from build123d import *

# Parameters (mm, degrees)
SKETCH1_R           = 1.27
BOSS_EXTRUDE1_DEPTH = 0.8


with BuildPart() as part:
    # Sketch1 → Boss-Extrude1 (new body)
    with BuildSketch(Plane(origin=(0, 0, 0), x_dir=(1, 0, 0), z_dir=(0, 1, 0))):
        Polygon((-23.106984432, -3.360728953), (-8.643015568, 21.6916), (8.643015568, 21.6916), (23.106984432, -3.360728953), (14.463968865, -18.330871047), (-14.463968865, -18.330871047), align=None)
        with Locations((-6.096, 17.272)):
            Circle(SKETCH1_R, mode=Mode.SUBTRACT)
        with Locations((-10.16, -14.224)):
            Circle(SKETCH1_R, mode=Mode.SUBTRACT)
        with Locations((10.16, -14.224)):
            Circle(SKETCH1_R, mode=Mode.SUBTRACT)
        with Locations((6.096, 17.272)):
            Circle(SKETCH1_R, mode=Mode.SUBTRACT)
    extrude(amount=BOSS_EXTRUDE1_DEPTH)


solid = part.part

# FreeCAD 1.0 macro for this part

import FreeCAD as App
import Part
import Sketcher
from FreeCAD import Vector
Q = App.Units.Quantity

doc = App.newDocument("Part")
body = doc.addObject("PartDesign::Body", "Body")

sketch1 = body.newObject("Sketcher::SketchObject", "Sketch")
sketch1.AttachmentSupport = (doc.getObject("XZ_Plane"), [""])
sketch1.MapMode = "FlatFace"
sketch1.addGeometry(Part.LineSegment(Vector(-8.6, -21.7, 0), Vector(-23.1, 3.4, 0)), False)
sketch1.addGeometry(Part.LineSegment(Vector(-23.1, 3.4, 0), Vector(-14.5, 18.3, 0)), False)
sketch1.addGeometry(Part.LineSegment(Vector(-14.5, 18.3, 0), Vector(14.5, 18.3, 0)), False)
sketch1.addGeometry(Part.LineSegment(Vector(14.5, 18.3, 0), Vector(23.1, 3.4, 0)), False)
sketch1.addGeometry(Part.LineSegment(Vector(23.1, 3.4, 0), Vector(8.6, -21.7, 0)), False)
sketch1.addGeometry(Part.LineSegment(Vector(8.6, -21.7, 0), Vector(-8.6, -21.7, 0)), False)
sketch1.addGeometry(Part.Circle(Vector(10.2, 14.2, 0), Vector(0, 0, 1), 1.3), False)
sketch1.addGeometry(Part.Circle(Vector(-10.2, 14.2, 0), Vector(0, 0, 1), 1.3), False)
sketch1.addGeometry(Part.Circle(Vector(6.1, -17.3, 0), Vector(0, 0, 1), 1.3), False)
sketch1.addGeometry(Part.Circle(Vector(-6.1, -17.3, 0), Vector(0, 0, 1), 1.3), False)
sketch1.addConstraint(Sketcher.Constraint("Coincident", 0, 2, 1, 1))
sketch1.addConstraint(Sketcher.Constraint("Coincident", 1, 2, 2, 1))
sketch1.addConstraint(Sketcher.Constraint("Coincident", 2, 2, 3, 1))
sketch1.addConstraint(Sketcher.Constraint("Coincident", 3, 2, 4, 1))
sketch1.addConstraint(Sketcher.Constraint("Coincident", 4, 2, 5, 1))
sketch1.addConstraint(Sketcher.Constraint("Coincident", 5, 2, 0, 1))
sketch1.addConstraint(Sketcher.Constraint("Horizontal", 2))
sketch1.addConstraint(Sketcher.Constraint("Horizontal", 5))
sketch1.addConstraint(Sketcher.Constraint("Equal", 6, 7))
sketch1.addConstraint(Sketcher.Constraint("Equal", 7, 8))
sketch1.addConstraint(Sketcher.Constraint("Equal", 8, 9))
sketch1.addConstraint(Sketcher.Constraint("Symmetric", 6, 3, 7, 3, -2))
sketch1.addConstraint(Sketcher.Constraint("Symmetric", 8, 3, 9, 3, -2))
sketch1.addConstraint(Sketcher.Constraint("Symmetric", 0, 2, 3, 2, -2))
sketch1.addConstraint(Sketcher.Constraint("Parallel", 0, 3))
sketch1.addConstraint(Sketcher.Constraint("Parallel", 1, 4))
sketch1.addConstraint(Sketcher.Constraint("Equal", 1, 3))
sketch1.addConstraint(Sketcher.Constraint("Diameter", 6, Q("2.54 mm")))
sketch1.addConstraint(Sketcher.Constraint("Angle", 0, Q("120 deg")))
sketch1.addConstraint(Sketcher.Constraint("DistanceX", -1, 1, 6, 3, Q("10.16 mm")))
sketch1.addConstraint(Sketcher.Constraint("DistanceX", 0, 2, 4, 2, Q("31.75 mm")))
sketch1.addConstraint(Sketcher.Constraint("DistanceY", -1, 1, 6, 3, Q("14.224 mm")))
sketch1.addConstraint(Sketcher.Constraint("DistanceX", -1, 1, 8, 3, Q("6.096 mm")))
sketch1.addConstraint(Sketcher.Constraint("DistanceY", 8, 3, -1, 1, Q("17.272 mm")))
sketch1.addConstraint(Sketcher.Constraint("DistanceX", 5, 2, 5, 1, Q("17.286031 mm")))
sketch1.addConstraint(Sketcher.Constraint("DistanceY", 4, 2, -1, 1, Q("21.6916 mm")))
sketch1.addConstraint(Sketcher.Constraint("Distance", 1, Q("17.286031 mm")))
pad1 = body.newObject("PartDesign::Pad", "Pad")
pad1.Profile = sketch1
pad1.Length = 0.8
pad1.Reversed = True

doc.recompute()
